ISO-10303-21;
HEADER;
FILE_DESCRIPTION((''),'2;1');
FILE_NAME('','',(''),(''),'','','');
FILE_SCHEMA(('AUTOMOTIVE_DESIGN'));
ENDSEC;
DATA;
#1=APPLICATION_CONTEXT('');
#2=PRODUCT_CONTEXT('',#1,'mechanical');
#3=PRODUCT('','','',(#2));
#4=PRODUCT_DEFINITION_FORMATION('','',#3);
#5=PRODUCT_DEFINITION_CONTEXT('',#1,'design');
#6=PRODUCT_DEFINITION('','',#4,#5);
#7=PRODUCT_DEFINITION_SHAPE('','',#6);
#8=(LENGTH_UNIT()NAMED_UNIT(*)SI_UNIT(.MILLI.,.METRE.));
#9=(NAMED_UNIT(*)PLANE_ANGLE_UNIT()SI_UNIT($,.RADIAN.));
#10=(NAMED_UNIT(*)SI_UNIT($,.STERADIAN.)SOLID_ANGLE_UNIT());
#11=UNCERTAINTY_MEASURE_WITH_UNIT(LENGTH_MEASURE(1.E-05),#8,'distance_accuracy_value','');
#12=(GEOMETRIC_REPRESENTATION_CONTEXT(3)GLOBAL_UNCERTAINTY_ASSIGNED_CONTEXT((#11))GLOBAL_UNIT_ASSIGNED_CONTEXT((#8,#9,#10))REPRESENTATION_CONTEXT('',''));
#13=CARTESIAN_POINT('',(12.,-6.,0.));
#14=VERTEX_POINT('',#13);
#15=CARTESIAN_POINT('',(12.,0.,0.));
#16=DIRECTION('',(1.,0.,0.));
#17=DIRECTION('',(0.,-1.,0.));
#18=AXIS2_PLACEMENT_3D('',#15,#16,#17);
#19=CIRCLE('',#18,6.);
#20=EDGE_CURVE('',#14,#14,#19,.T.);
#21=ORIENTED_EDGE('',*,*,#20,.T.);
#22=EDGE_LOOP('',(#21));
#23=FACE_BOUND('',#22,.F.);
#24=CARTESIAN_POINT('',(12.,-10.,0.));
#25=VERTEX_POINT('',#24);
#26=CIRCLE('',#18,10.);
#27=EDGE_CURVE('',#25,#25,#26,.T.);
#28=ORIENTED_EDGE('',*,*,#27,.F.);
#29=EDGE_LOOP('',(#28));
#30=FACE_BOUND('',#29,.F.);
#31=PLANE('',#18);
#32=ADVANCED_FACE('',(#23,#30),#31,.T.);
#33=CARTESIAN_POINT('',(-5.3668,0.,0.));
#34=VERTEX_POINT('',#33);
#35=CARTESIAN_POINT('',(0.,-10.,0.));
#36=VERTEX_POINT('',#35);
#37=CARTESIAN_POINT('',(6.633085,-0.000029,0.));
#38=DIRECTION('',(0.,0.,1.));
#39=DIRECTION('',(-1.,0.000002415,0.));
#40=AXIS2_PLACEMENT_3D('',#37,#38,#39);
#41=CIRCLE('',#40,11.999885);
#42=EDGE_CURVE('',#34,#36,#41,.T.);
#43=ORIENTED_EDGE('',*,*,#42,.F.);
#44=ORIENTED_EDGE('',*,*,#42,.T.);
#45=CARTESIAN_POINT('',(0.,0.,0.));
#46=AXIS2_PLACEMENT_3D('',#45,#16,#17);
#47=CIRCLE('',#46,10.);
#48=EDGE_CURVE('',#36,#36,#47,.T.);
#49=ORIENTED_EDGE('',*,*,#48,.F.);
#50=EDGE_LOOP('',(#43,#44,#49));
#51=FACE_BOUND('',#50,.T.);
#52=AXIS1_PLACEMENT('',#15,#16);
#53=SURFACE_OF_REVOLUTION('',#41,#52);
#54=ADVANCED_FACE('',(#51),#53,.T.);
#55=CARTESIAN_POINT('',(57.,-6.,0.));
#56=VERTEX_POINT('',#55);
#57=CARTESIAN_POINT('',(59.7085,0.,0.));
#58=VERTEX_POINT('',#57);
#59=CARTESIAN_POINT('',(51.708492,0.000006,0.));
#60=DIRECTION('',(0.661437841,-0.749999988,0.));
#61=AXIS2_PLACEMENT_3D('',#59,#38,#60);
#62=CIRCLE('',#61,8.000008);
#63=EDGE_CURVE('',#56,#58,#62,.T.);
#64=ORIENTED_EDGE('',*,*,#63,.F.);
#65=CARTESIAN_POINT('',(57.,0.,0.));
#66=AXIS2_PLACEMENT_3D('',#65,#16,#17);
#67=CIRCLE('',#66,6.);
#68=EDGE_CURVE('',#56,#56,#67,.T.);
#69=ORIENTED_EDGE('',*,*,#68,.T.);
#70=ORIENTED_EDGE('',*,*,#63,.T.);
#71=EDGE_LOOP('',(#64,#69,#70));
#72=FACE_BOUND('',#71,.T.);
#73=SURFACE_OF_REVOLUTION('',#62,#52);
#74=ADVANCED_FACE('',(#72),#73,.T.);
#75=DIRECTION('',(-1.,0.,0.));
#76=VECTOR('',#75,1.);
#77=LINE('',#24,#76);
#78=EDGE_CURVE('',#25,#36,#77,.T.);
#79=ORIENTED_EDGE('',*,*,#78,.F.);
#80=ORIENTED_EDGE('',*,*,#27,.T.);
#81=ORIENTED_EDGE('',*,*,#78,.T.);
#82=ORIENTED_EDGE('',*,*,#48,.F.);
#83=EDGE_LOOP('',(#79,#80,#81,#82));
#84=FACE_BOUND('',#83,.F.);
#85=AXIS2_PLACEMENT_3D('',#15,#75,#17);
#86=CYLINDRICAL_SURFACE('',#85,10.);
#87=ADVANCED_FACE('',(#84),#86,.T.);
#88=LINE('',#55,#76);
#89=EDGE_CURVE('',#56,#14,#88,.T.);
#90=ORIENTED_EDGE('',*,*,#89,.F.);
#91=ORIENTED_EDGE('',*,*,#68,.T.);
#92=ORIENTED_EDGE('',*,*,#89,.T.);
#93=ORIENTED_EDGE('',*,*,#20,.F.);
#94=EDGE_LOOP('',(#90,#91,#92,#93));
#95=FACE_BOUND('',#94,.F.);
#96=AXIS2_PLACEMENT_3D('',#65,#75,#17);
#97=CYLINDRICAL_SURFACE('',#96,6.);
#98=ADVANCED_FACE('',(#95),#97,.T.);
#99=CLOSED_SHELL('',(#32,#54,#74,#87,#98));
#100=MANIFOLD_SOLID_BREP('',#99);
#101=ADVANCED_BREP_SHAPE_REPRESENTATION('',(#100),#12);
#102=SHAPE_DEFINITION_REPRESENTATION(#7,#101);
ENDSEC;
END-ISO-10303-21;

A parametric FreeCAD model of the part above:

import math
import FreeCAD as App
import Part
import Sketcher

doc = App.newDocument("Part")
body = doc.addObject("PartDesign::Body", "Body")

sketch1 = body.newObject("Sketcher::SketchObject", "Sketch")
sketch1.AttachmentSupport = (doc.getObject("XY_Plane"), [""])
sketch1.MapMode = "FlatFace"
sketch1.addGeometry([
    Part.ArcOfCircle(Part.Circle(App.Vector(6.6, 0, 0), App.Vector(0, 0, 1), 12), math.radians(180), math.radians(236)),
    Part.LineSegment(App.Vector(0, -10, 0), App.Vector(12, -10, 0)),
    Part.LineSegment(App.Vector(12, -10, 0), App.Vector(12, -6, 0)),
    Part.LineSegment(App.Vector(12, -6, 0), App.Vector(57, -6, 0)),
    Part.ArcOfCircle(Part.Circle(App.Vector(51.7, 0, 0), App.Vector(0, 0, 1), 8), math.radians(-49), math.radians(0)),
    Part.LineSegment(App.Vector(59.7, 0, 0), App.Vector(-5.4, 0, 0)),
], False)
sketch1.addConstraint([
    Sketcher.Constraint("Coincident", 0, 2, 1, 1),
    Sketcher.Constraint("Coincident", 1, 2, 2, 1),
    Sketcher.Constraint("Coincident", 2, 2, 3, 1),
    Sketcher.Constraint("Coincident", 3, 2, 4, 1),
    Sketcher.Constraint("Coincident", 4, 2, 5, 1),
    Sketcher.Constraint("Coincident", 5, 2, 0, 1),
    Sketcher.Constraint("Horizontal", 1),
    Sketcher.Constraint("Vertical", 2),
    Sketcher.Constraint("Horizontal", 3),
    Sketcher.Constraint("Horizontal", 5),
    Sketcher.Constraint("PointOnObject", 0, 3, -1),
    Sketcher.Constraint("PointOnObject", 4, 3, -1),
    Sketcher.Constraint("PointOnObject", 0, 2, -2),
    Sketcher.Constraint("PointOnObject", 4, 2, -1),
    Sketcher.Constraint("Radius", 0, 12.0),
    Sketcher.Constraint("Radius", 4, 8.0),
    Sketcher.Constraint("DistanceX", 1, 1, 1, 2, 12.0),
    Sketcher.Constraint("DistanceX", 3, 1, 3, 2, 45.0),
    Sketcher.Constraint("DistanceY", 0, 2, -1, 1, 10.0),
    Sketcher.Constraint("DistanceY", 2, 2, -1, 1, 6.0),
])
revolution = body.newObject("PartDesign::Revolution", "Revolution")
revolution.Profile = sketch1
revolution.ReferenceAxis = (sketch1, ["H_Axis"])
revolution.Angle = 360

doc.recompute()
